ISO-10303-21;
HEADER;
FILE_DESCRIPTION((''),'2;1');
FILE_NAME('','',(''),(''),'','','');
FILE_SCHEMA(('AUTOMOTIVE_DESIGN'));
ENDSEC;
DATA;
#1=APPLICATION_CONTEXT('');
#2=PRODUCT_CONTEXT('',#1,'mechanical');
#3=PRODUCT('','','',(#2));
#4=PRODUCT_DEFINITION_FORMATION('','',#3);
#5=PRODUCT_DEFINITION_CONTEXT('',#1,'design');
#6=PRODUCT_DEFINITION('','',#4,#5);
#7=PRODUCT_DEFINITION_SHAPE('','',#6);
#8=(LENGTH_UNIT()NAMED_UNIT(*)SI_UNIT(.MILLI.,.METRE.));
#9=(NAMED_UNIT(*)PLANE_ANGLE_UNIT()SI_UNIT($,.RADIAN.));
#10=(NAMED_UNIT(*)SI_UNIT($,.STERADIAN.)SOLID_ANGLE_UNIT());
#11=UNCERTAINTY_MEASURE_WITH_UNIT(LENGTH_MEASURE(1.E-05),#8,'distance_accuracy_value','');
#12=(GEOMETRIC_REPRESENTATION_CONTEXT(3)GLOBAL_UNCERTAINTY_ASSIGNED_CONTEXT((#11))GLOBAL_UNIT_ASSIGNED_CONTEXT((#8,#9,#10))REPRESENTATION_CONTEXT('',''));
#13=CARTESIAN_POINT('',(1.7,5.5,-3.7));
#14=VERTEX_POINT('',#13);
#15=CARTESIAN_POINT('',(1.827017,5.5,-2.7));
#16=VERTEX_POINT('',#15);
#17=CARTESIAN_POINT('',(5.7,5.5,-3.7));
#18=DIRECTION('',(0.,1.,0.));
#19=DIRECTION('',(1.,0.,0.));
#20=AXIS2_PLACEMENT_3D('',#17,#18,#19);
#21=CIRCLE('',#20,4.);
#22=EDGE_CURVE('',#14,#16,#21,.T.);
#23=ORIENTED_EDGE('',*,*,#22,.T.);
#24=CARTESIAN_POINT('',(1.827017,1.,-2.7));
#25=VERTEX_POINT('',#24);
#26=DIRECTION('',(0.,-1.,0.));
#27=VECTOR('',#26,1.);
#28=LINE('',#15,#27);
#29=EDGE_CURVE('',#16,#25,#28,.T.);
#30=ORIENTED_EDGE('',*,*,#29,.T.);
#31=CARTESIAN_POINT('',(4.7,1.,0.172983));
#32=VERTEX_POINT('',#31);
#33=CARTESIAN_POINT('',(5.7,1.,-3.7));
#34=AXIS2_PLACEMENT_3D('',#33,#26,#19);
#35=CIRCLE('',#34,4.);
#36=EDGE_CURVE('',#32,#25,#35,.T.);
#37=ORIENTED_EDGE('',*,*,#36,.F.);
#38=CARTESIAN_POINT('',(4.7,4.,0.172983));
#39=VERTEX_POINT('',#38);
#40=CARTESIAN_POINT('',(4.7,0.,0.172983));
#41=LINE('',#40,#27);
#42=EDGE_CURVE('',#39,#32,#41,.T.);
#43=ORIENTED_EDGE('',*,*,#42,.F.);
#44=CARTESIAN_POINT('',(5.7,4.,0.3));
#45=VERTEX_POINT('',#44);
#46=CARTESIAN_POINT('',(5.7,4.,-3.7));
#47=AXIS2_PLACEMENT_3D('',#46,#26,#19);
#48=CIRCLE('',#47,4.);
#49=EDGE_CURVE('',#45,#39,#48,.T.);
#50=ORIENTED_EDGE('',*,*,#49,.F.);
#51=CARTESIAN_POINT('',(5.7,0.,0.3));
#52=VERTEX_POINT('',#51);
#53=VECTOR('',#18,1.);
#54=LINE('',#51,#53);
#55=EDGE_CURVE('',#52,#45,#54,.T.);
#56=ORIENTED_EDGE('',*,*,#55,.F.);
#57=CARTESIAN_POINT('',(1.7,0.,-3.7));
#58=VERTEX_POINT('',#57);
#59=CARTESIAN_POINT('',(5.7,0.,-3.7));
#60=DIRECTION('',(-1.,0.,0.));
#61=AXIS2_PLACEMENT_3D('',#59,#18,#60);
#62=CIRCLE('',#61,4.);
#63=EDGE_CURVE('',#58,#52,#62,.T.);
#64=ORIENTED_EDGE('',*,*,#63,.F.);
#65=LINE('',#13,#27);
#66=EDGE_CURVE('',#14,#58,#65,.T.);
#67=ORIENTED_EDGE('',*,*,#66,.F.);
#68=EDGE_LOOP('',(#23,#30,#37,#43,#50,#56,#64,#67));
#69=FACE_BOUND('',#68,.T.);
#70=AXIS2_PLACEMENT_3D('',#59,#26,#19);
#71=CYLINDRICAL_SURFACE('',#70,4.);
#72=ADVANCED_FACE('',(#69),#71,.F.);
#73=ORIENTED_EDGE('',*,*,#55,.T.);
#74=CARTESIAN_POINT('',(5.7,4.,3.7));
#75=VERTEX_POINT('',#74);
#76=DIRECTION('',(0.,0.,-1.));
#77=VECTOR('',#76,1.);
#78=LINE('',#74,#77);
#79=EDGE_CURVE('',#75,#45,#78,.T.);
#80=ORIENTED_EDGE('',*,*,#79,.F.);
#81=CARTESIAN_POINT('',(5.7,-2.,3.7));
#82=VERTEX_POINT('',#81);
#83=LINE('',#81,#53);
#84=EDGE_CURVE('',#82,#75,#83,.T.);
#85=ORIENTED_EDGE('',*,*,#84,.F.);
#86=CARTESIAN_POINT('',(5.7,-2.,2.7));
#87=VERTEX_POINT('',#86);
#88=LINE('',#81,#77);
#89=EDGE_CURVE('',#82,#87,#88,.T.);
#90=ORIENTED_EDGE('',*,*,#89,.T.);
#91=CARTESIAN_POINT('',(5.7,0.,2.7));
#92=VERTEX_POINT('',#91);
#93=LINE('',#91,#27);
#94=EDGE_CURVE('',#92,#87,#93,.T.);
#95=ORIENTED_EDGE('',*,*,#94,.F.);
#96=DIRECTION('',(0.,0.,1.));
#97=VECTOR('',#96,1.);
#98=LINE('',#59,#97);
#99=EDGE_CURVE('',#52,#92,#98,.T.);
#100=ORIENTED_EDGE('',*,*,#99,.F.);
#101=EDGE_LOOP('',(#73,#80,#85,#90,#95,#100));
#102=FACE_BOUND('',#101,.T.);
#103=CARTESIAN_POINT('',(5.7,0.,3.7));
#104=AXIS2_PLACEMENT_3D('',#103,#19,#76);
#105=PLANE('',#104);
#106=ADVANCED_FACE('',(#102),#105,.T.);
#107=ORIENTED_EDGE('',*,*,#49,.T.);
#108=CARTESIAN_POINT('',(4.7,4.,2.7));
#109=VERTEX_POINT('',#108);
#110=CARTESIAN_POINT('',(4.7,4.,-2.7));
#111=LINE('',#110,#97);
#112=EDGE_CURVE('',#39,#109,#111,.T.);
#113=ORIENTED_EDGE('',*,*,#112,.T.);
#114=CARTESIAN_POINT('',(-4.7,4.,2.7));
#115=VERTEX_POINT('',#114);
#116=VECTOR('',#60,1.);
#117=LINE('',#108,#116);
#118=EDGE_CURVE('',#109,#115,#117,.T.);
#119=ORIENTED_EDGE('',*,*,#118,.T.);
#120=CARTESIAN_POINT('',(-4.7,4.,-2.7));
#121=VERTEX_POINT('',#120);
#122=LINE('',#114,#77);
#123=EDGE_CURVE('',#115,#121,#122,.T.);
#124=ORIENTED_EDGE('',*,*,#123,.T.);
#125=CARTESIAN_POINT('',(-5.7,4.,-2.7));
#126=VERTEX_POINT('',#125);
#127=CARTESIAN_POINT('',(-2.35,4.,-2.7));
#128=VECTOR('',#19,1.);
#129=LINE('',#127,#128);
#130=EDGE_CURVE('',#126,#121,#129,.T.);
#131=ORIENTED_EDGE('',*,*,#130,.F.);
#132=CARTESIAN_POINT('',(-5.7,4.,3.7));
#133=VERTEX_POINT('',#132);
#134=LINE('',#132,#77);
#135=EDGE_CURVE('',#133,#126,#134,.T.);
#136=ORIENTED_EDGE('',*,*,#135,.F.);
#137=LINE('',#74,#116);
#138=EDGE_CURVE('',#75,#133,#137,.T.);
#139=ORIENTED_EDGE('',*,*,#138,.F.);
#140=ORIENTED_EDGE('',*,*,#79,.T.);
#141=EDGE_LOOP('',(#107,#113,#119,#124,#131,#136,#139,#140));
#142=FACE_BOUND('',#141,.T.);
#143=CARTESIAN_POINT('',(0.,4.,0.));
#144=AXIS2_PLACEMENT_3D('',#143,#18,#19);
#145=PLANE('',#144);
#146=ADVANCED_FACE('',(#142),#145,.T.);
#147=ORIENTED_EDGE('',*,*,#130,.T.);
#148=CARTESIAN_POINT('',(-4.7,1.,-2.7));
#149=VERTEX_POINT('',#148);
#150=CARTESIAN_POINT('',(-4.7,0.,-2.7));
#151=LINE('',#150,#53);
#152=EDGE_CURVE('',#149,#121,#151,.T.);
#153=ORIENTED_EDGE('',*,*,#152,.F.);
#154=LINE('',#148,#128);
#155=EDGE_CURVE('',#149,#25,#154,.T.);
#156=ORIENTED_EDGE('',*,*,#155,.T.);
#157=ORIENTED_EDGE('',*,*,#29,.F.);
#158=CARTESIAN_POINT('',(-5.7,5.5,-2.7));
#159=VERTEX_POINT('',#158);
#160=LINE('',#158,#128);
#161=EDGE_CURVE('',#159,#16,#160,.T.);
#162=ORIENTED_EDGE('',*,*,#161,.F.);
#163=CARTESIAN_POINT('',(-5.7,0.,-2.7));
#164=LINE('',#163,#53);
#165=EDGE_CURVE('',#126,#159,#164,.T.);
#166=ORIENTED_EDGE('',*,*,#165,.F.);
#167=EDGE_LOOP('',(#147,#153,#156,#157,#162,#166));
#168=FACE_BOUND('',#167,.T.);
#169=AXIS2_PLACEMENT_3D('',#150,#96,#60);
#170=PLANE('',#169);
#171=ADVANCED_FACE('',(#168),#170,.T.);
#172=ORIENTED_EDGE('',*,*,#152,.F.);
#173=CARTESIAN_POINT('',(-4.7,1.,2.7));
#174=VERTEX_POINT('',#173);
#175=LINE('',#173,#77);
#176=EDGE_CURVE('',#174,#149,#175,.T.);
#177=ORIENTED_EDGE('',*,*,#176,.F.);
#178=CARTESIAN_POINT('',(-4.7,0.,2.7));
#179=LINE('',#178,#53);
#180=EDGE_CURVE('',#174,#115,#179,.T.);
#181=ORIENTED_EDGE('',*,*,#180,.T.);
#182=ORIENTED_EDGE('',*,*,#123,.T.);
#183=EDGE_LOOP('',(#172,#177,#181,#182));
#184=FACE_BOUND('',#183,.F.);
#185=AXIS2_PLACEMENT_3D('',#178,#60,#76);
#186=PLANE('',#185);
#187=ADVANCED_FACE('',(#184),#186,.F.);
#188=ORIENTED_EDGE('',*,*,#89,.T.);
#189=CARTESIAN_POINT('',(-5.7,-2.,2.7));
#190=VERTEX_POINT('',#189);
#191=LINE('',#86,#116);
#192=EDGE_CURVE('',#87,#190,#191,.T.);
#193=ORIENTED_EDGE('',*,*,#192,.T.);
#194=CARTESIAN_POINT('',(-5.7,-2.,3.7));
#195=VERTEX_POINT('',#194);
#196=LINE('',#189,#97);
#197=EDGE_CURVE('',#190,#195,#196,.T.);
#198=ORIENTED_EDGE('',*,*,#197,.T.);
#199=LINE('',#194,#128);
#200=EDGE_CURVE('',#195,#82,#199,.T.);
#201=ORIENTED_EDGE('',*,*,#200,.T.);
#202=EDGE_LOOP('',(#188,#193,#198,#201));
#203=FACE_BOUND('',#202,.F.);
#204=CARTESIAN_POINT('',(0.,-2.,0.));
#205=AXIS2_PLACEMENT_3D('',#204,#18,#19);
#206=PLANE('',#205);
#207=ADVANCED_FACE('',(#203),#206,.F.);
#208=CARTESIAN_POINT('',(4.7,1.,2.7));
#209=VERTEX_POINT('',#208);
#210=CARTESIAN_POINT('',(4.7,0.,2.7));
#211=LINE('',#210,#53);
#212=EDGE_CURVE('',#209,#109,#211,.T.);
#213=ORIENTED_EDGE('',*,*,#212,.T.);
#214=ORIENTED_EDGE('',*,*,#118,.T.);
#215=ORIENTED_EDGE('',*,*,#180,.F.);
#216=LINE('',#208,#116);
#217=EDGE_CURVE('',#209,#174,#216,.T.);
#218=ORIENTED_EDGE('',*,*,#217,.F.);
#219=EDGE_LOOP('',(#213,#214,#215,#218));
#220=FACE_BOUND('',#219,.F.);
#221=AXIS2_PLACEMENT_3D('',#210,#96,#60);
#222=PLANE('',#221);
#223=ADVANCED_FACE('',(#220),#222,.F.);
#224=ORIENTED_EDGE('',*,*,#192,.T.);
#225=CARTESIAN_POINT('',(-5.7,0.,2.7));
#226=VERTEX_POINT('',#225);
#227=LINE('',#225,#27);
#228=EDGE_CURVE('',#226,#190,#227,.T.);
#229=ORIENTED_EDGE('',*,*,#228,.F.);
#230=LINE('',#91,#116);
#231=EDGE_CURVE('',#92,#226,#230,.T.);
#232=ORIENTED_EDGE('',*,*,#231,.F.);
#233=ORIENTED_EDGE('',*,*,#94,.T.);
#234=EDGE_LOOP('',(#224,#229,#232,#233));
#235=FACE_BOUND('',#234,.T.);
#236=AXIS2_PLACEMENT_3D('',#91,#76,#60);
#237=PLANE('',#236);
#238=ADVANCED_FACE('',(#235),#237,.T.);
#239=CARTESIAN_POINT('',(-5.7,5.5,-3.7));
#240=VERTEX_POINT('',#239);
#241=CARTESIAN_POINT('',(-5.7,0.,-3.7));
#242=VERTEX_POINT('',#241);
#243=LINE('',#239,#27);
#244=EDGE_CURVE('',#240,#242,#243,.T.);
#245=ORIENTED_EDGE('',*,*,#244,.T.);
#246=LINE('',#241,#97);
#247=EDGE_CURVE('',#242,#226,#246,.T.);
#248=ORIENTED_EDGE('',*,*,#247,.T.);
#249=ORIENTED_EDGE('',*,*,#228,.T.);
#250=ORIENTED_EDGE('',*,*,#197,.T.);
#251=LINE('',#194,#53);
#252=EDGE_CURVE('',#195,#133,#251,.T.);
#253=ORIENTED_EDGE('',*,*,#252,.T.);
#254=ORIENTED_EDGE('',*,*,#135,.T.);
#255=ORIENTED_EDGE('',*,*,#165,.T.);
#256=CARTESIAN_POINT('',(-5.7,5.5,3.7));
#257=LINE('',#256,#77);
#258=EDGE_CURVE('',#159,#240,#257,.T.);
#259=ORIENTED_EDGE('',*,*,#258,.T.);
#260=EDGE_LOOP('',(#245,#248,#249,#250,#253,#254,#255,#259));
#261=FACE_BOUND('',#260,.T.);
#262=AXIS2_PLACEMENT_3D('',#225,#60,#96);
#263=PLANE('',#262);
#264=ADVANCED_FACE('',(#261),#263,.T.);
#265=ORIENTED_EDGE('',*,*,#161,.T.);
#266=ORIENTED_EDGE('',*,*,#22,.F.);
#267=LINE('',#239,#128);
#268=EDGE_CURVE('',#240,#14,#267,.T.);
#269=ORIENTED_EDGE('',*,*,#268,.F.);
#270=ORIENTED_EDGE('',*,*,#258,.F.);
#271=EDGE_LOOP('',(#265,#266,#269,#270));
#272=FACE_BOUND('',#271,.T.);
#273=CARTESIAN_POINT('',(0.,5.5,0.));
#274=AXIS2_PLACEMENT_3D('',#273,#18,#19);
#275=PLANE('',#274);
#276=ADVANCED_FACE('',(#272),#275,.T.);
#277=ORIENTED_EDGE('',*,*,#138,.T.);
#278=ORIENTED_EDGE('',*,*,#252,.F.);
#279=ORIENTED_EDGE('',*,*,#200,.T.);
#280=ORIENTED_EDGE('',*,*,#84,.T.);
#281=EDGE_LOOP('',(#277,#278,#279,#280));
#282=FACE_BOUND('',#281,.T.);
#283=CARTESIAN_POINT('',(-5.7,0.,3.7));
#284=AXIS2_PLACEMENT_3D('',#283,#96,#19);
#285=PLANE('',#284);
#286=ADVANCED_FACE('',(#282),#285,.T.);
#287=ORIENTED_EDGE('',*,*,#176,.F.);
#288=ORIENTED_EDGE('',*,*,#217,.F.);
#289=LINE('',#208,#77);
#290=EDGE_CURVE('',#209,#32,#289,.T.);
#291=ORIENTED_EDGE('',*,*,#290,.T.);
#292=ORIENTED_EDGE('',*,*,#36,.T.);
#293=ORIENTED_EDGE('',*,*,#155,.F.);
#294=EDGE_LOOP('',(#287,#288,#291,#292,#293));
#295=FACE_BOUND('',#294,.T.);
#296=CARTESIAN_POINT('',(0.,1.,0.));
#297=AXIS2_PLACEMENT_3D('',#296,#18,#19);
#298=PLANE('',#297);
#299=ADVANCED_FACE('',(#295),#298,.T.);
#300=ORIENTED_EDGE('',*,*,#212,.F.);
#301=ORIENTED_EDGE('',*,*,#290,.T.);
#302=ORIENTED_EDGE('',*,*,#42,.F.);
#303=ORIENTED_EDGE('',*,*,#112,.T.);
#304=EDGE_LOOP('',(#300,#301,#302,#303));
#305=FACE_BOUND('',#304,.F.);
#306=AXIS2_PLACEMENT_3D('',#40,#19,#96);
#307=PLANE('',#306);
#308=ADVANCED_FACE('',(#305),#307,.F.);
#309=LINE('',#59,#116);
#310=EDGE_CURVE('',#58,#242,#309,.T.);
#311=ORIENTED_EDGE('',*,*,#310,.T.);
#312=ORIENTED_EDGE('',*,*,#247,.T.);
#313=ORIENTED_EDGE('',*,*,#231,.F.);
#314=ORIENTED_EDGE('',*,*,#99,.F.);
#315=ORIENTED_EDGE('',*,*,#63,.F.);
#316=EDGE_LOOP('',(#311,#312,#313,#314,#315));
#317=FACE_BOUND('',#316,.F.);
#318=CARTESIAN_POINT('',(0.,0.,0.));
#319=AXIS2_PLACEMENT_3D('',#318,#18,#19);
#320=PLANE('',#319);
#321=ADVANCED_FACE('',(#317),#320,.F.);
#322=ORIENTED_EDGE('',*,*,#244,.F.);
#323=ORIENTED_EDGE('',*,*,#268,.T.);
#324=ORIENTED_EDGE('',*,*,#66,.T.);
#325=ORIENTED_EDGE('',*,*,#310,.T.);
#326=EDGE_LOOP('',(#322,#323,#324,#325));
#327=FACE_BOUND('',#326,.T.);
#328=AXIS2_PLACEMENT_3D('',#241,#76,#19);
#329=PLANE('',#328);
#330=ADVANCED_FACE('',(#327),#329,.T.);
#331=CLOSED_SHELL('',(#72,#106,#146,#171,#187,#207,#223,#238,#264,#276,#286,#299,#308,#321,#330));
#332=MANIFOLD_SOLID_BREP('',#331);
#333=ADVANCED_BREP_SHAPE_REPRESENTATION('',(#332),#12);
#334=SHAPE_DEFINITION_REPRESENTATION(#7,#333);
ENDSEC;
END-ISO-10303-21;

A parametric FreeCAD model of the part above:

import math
import FreeCAD as App
import Part
import Sketcher
Q = App.Units.Quantity

doc = App.newDocument("Part")
body = doc.addObject("PartDesign::Body", "Body")

# Sketch on XZ plane
sketch1 = body.newObject("Sketcher::SketchObject", "Sketch")
sketch1.AttachmentSupport = (doc.getObject("XZ_Plane"), [""])
sketch1.MapMode = "FlatFace"
sketch1.addGeometry(Part.LineSegment(App.Vector(-6, -4, 0), App.Vector(-6, 4, 0)), False)
sketch1.addGeometry(Part.LineSegment(App.Vector(-6, 4, 0), App.Vector(6, 4, 0)), False)
sketch1.addGeometry(Part.LineSegment(App.Vector(6, 4, 0), App.Vector(6, -4, 0)), False)
sketch1.addGeometry(Part.LineSegment(App.Vector(6, -4, 0), App.Vector(-6, -4, 0)), False)
sketch1.addGeometry(Part.LineSegment(App.Vector(-5, -3, 0), App.Vector(5, -3, 0)), False)
sketch1.addGeometry(Part.LineSegment(App.Vector(5, -3, 0), App.Vector(5, 3, 0)), False)
sketch1.addGeometry(Part.LineSegment(App.Vector(5, 3, 0), App.Vector(-5, 3, 0)), False)
sketch1.addGeometry(Part.LineSegment(App.Vector(-5, 3, 0), App.Vector(-5, -3, 0)), False)
sketch1.addConstraint(Sketcher.Constraint("Coincident", 0, 2, 1, 1))
sketch1.addConstraint(Sketcher.Constraint("Coincident", 1, 2, 2, 1))
sketch1.addConstraint(Sketcher.Constraint("Coincident", 2, 2, 3, 1))
sketch1.addConstraint(Sketcher.Constraint("Coincident", 3, 2, 0, 1))
sketch1.addConstraint(Sketcher.Constraint("Coincident", 4, 2, 5, 1))
sketch1.addConstraint(Sketcher.Constraint("Coincident", 5, 2, 6, 1))
sketch1.addConstraint(Sketcher.Constraint("Coincident", 6, 2, 7, 1))
sketch1.addConstraint(Sketcher.Constraint("Coincident", 7, 2, 4, 1))
sketch1.addConstraint(Sketcher.Constraint("Vertical", 0))
sketch1.addConstraint(Sketcher.Constraint("Horizontal", 1))
sketch1.addConstraint(Sketcher.Constraint("Vertical", 2))
sketch1.addConstraint(Sketcher.Constraint("Horizontal", 3))
sketch1.addConstraint(Sketcher.Constraint("Horizontal", 4))
sketch1.addConstraint(Sketcher.Constraint("Vertical", 5))
sketch1.addConstraint(Sketcher.Constraint("Horizontal", 6))
sketch1.addConstraint(Sketcher.Constraint("Vertical", 7))
sketch1.addConstraint(Sketcher.Constraint("Symmetric", 0, 2, 2, 2, -1, 1))
sketch1.addConstraint(Sketcher.Constraint("Symmetric", 4, 2, 6, 2, -1, 1))
sketch1.addConstraint(Sketcher.Constraint("DistanceX", 4, 1, 4, 2, Q("9.4 mm")))
sketch1.addConstraint(Sketcher.Constraint("DistanceY", 5, 1, 5, 2, Q("5.4 mm")))
sketch1.addConstraint(Sketcher.Constraint("DistanceX", 4, 2, 2, 2, Q("1 mm")))
sketch1.addConstraint(Sketcher.Constraint("DistanceY", 2, 2, 4, 2, Q("1 mm")))
pad1 = body.newObject("PartDesign::Pad", "Pad")
pad1.Profile = sketch1
pad1.Length = 4
pad1.Reversed = True

# Sketch on XZ plane
sketch2 = body.newObject("Sketcher::SketchObject", "Sketch001")
sketch2.AttachmentSupport = (doc.getObject("XZ_Plane"), [""])
sketch2.MapMode = "FlatFace"
sketch2.addGeometry(Part.LineSegment(App.Vector(-5, -3, 0), App.Vector(-5, 3, 0)), False)
sketch2.addGeometry(Part.LineSegment(App.Vector(-5, 3, 0), App.Vector(5, 3, 0)), False)
sketch2.addGeometry(Part.LineSegment(App.Vector(5, 3, 0), App.Vector(5, -3, 0)), False)
sketch2.addGeometry(Part.LineSegment(App.Vector(5, -3, 0), App.Vector(-5, -3, 0)), False)
sketch2.addConstraint(Sketcher.Constraint("Coincident", 0, 2, 1, 1))
sketch2.addConstraint(Sketcher.Constraint("Coincident", 1, 2, 2, 1))
sketch2.addConstraint(Sketcher.Constraint("Coincident", 2, 2, 3, 1))
sketch2.addConstraint(Sketcher.Constraint("Coincident", 3, 2, 0, 1))
sketch2.addConstraint(Sketcher.Constraint("Vertical", 0))
sketch2.addConstraint(Sketcher.Constraint("Horizontal", 1))
sketch2.addConstraint(Sketcher.Constraint("Vertical", 2))
sketch2.addConstraint(Sketcher.Constraint("Horizontal", 3))
sketch2.addConstraint(Sketcher.Constraint("Symmetric", 0, 2, 2, 2, -1, 1))
sketch2.addConstraint(Sketcher.Constraint("DistanceX", 1, 1, 1, 2, Q("9.4 mm")))
sketch2.addConstraint(Sketcher.Constraint("DistanceY", 0, 1, 0, 2, Q("5.4 mm")))
pad2 = body.newObject("PartDesign::Pad", "Pad001")
pad2.Profile = sketch2
pad2.Length = 1
pad2.Reversed = True

# Sketch on XZ plane
sketch3 = body.newObject("Sketcher::SketchObject", "Sketch002")
sketch3.AttachmentSupport = (doc.getObject("XZ_Plane"), [""])
sketch3.MapMode = "FlatFace"
sketch3.addGeometry(Part.LineSegment(App.Vector(-5.7, 2.7, 0), App.Vector(-5.7, 3.7, 0)), False)
sketch3.addGeometry(Part.LineSegment(App.Vector(-5.7, 3.7, 0), App.Vector(5.7, 3.7, 0)), False)
sketch3.addGeometry(Part.LineSegment(App.Vector(5.7, 3.7, 0), App.Vector(5.7, 2.7, 0)), False)
sketch3.addGeometry(Part.LineSegment(App.Vector(5.7, 2.7, 0), App.Vector(-5.7, 2.7, 0)), False)
sketch3.addConstraint(Sketcher.Constraint("Coincident", 0, 2, 1, 1))
sketch3.addConstraint(Sketcher.Constraint("Coincident", 1, 2, 2, 1))
sketch3.addConstraint(Sketcher.Constraint("Coincident", 2, 2, 3, 1))
sketch3.addConstraint(Sketcher.Constraint("Coincident", 3, 2, 0, 1))
sketch3.addConstraint(Sketcher.Constraint("Vertical", 0))
sketch3.addConstraint(Sketcher.Constraint("Horizontal", 1))
sketch3.addConstraint(Sketcher.Constraint("Vertical", 2))
sketch3.addConstraint(Sketcher.Constraint("Horizontal", 3))
sketch3.addConstraint(Sketcher.Constraint("DistanceY", 0, 1, 0, 2, Q("1 mm")))
sketch3.addConstraint(Sketcher.Constraint("DistanceX", 1, 1, 1, 2, Q("11.4 mm")))
sketch3.addConstraint(Sketcher.Constraint("DistanceX", 0, 2, -1, 1, Q("5.7 mm")))
sketch3.addConstraint(Sketcher.Constraint("DistanceY", -1, 1, 0, 2, Q("3.7 mm")))
pad3 = body.newObject("PartDesign::Pad", "Pad002")
pad3.Profile = sketch3
pad3.Length = 2

# Sketch on XZ plane
sketch4 = body.newObject("Sketcher::SketchObject", "Sketch003")
sketch4.AttachmentSupport = (doc.getObject("XZ_Plane"), [""])
sketch4.MapMode = "FlatFace"
sketch4.addGeometry(Part.ArcOfCircle(Part.Circle(App.Vector(5.7, -3.7, 0), App.Vector(0, 0, 1), 4), math.radians(90), math.radians(180)), False)
sketch4.addGeometry(Part.LineSegment(App.Vector(5.7, 0.3, 0), App.Vector(5.7, -3.7, 0)), False)
sketch4.addGeometry(Part.LineSegment(App.Vector(5.7, -3.7, 0), App.Vector(1.7, -3.7, 0)), False)
sketch4.addConstraint(Sketcher.Constraint("Coincident", 0, 1, 1, 1))
sketch4.addConstraint(Sketcher.Constraint("Coincident", 1, 2, 2, 1))
sketch4.addConstraint(Sketcher.Constraint("Coincident", 2, 2, 0, 2))
sketch4.addConstraint(Sketcher.Constraint("Vertical", 1))
sketch4.addConstraint(Sketcher.Constraint("Horizontal", 2))
sketch4.addConstraint(Sketcher.Constraint("Coincident", 1, 2, 0, 3))
sketch4.addConstraint(Sketcher.Constraint("Radius", 0, Q("4 mm")))
sketch4.addConstraint(Sketcher.Constraint("DistanceX", -1, 1, 0, 3, Q("5.7 mm")))
sketch4.addConstraint(Sketcher.Constraint("DistanceY", 0, 3, -1, 1, Q("3.7 mm")))
pocket1 = body.newObject("PartDesign::Pocket", "Pocket")
pocket1.Profile = sketch4
pocket1.Length = 5

# Sketch on XZ plane
sketch5 = body.newObject("Sketcher::SketchObject", "Sketch004")
sketch5.AttachmentSupport = (doc.getObject("XZ_Plane"), [""])
sketch5.MapMode = "FlatFace"
sketch5.addGeometry(Part.LineSegment(App.Vector(-5.7, -2.7, 0), App.Vector(1.8, -2.7, 0)), False)
sketch5.addGeometry(Part.ArcOfCircle(Part.Circle(App.Vector(5.7, -3.7, 0), App.Vector(0, 0, 1), 4), math.radians(165.52), math.radians(180)), False)
sketch5.addGeometry(Part.LineSegment(App.Vector(1.7, -3.7, 0), App.Vector(-5.7, -3.7, 0)), False)
sketch5.addGeometry(Part.LineSegment(App.Vector(-5.7, -3.7, 0), App.Vector(-5.7, -2.7, 0)), False)
sketch5.addConstraint(Sketcher.Constraint("Coincident", 0, 2, 1, 1))
sketch5.addConstraint(Sketcher.Constraint("Coincident", 1, 2, 2, 1))
sketch5.addConstraint(Sketcher.Constraint("Coincident", 2, 2, 3, 1))
sketch5.addConstraint(Sketcher.Constraint("Coincident", 3, 2, 0, 1))
sketch5.addConstraint(Sketcher.Constraint("Horizontal", 0))
sketch5.addConstraint(Sketcher.Constraint("Horizontal", 2))
sketch5.addConstraint(Sketcher.Constraint("Vertical", 3))
sketch5.addConstraint(Sketcher.Constraint("Radius", 1, Q("4 mm")))
sketch5.addConstraint(Sketcher.Constraint("DistanceY", 3, 1, 3, 2, Q("1 mm")))
sketch5.addConstraint(Sketcher.Constraint("DistanceY", 1, 3, 0, 2, Q("1 mm")))
sketch5.addConstraint(Sketcher.Constraint("DistanceX", 2, 2, 2, 1, Q("7.4 mm")))
sketch5.addConstraint(Sketcher.Constraint("DistanceX", -1, 1, 1, 3, Q("5.7 mm")))
sketch5.addConstraint(Sketcher.Constraint("DistanceY", 1, 3, -1, 1, Q("3.7 mm")))
pad4 = body.newObject("PartDesign::Pad", "Pad003")
pad4.Profile = sketch5
pad4.Length = 5.5
pad4.Reversed = True

doc.recompute()
